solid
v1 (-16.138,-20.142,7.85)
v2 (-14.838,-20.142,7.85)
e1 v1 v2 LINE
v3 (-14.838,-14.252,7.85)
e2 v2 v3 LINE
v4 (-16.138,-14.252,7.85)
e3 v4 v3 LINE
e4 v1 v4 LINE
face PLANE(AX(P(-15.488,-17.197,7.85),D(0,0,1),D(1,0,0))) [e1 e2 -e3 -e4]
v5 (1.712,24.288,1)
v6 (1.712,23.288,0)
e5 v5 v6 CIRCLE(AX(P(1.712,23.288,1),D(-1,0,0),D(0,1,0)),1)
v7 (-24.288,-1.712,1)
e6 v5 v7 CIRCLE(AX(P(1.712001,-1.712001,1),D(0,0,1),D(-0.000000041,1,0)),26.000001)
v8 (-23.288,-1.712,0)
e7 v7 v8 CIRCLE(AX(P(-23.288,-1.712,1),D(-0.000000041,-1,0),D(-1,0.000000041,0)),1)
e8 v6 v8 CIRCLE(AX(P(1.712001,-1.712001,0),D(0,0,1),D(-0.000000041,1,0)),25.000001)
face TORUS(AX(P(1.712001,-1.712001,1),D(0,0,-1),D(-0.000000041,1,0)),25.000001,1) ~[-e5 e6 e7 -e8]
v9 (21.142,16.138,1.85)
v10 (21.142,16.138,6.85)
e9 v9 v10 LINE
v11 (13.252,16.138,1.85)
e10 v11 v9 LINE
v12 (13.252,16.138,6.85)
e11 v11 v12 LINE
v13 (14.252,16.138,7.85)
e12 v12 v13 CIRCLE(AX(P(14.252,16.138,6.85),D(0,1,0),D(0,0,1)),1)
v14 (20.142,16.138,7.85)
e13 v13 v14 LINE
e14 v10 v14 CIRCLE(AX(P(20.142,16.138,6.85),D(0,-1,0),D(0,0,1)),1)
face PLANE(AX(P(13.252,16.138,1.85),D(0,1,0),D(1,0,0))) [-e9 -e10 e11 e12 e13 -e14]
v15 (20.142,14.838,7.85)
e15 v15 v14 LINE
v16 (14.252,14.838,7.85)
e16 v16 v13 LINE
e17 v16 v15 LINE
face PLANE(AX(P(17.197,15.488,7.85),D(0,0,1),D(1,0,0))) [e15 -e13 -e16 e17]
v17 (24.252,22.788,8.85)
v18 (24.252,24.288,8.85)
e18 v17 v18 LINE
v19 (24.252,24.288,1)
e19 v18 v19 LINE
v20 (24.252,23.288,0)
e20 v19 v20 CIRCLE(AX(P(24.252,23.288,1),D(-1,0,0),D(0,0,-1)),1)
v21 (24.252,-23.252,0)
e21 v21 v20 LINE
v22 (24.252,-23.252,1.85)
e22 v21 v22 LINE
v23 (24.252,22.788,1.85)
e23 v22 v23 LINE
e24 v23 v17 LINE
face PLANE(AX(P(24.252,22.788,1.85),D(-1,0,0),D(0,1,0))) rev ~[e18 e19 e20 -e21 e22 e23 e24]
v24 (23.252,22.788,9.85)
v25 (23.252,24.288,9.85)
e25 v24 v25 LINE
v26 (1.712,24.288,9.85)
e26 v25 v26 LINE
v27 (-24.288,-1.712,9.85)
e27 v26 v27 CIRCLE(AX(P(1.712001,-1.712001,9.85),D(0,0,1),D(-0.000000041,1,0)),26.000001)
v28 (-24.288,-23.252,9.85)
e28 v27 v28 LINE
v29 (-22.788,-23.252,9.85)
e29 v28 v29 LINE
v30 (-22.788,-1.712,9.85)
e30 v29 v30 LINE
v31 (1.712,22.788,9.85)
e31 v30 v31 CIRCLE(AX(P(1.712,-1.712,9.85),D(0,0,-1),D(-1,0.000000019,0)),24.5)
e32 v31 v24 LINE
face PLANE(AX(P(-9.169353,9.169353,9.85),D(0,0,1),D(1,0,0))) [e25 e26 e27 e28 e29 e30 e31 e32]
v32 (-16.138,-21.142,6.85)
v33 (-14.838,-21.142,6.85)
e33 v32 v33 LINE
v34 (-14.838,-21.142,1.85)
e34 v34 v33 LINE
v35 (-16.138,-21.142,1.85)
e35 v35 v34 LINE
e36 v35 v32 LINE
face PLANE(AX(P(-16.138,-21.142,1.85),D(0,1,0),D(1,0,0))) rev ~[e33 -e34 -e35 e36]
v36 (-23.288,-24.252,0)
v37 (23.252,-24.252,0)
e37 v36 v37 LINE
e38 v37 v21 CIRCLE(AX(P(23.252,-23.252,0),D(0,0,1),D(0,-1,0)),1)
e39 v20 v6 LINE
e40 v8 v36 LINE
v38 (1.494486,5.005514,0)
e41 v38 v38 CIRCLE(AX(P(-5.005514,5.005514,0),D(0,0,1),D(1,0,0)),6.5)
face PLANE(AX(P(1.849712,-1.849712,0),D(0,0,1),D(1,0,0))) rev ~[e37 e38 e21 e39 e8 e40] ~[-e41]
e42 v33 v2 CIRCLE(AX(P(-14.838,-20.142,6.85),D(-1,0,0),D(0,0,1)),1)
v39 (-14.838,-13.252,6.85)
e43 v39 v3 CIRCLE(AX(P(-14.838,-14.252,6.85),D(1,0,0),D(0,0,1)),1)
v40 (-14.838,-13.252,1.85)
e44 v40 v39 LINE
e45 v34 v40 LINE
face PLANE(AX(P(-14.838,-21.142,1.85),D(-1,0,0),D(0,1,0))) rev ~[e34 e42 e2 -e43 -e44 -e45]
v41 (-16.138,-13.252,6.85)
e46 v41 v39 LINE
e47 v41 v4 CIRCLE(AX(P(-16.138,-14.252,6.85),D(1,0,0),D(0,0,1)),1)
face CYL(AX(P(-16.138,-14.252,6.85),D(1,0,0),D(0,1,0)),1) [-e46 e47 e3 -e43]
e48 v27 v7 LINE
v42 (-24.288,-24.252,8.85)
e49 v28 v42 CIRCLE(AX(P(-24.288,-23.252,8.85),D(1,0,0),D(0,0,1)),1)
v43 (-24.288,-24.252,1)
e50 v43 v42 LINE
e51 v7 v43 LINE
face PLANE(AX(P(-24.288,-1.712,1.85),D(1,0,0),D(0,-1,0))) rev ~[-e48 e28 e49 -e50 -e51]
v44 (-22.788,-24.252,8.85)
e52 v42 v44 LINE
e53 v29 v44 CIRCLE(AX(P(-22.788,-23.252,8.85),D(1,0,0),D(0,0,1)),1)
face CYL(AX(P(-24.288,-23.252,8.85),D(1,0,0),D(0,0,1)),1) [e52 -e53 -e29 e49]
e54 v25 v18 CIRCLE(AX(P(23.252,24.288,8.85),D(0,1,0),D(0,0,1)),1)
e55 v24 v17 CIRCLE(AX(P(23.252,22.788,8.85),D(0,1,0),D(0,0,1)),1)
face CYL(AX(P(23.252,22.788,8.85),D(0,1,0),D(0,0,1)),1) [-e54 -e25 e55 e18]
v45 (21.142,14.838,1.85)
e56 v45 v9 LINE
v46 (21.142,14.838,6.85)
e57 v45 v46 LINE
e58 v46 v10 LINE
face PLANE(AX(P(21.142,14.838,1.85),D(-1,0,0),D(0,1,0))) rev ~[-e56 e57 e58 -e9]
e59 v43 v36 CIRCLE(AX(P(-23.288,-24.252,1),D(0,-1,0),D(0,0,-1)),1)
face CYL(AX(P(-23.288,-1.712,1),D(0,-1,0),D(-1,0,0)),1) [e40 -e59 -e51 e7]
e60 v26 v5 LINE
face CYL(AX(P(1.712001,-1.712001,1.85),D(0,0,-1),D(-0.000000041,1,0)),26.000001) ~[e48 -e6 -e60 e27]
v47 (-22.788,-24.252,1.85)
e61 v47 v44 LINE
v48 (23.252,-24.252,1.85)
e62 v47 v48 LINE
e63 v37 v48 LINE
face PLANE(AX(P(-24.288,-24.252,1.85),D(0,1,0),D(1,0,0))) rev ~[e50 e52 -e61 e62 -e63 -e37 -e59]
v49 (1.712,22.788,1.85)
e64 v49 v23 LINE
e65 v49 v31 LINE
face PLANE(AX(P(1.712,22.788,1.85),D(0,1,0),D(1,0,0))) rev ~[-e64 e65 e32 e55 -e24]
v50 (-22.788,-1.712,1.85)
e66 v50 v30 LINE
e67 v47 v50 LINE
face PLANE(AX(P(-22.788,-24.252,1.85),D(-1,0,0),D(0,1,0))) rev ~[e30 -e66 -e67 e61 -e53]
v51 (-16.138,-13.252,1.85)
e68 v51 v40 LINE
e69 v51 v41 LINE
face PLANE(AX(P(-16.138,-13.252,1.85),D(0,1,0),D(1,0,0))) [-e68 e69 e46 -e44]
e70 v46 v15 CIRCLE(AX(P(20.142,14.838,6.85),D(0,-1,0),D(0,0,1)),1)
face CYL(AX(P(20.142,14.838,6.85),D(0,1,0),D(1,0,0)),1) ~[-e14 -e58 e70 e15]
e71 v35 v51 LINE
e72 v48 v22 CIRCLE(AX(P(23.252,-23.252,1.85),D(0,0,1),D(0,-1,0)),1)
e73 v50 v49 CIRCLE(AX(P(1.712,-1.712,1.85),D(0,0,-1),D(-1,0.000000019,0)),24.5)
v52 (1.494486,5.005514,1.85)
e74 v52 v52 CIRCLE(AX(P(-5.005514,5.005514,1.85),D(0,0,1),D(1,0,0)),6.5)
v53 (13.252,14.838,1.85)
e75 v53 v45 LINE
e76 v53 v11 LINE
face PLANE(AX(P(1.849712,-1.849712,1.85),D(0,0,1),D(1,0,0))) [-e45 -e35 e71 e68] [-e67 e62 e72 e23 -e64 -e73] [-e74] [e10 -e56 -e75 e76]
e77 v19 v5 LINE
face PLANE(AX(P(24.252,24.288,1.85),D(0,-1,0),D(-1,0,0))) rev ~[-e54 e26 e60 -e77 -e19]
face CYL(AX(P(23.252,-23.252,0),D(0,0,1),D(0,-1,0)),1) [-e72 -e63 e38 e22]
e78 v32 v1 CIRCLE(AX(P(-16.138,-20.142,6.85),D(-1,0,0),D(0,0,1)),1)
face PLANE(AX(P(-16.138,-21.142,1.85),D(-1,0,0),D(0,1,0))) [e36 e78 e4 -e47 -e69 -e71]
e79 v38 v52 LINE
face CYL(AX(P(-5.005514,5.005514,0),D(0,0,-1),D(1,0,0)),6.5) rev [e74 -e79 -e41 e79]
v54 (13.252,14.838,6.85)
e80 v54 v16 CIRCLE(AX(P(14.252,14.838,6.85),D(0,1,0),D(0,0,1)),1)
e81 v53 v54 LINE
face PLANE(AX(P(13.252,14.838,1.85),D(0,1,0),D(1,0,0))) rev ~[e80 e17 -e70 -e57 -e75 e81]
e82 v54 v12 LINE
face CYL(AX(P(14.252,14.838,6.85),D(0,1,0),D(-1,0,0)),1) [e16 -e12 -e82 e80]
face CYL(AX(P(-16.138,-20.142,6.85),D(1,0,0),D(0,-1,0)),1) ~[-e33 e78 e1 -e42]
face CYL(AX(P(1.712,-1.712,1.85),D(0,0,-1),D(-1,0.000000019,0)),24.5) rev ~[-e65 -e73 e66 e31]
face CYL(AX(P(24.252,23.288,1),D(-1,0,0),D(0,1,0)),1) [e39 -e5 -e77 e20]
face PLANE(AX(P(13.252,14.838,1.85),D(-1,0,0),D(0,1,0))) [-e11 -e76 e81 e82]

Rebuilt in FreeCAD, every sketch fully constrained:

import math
import FreeCAD as App
import Part
import Sketcher


def edges_at(feature, points):
    """Names of the edges that pass closest to the given points."""
    edges = feature.Shape.Edges
    near = lambda p: min(range(len(edges)), key=lambda i: edges[i].distToShape(Part.Vertex(*p))[0])
    return sorted({f"Edge{near(p) + 1}" for p in points})

doc = App.newDocument("Part")
body = doc.addObject("PartDesign::Body", "Body")

# Sketch on XY plane
sketch1 = body.newObject("Sketcher::SketchObject", "Sketch")
sketch1.AttachmentSupport = (doc.getObject("XY_Plane"), [""])
sketch1.MapMode = "FlatFace"
sketch1.addGeometry(Part.LineSegment(App.Vector(-24, -24, 0), App.Vector(24, -24, 0)), False)
sketch1.addGeometry(Part.LineSegment(App.Vector(24, -24, 0), App.Vector(24, 24, 0)), False)
sketch1.addGeometry(Part.LineSegment(App.Vector(24, 24, 0), App.Vector(2, 24, 0)), False)
sketch1.addGeometry(Part.ArcOfCircle(Part.Circle(App.Vector(2, -2, 0), App.Vector(0, 0, 1), 26), math.radians(90), math.radians(180)), False)
sketch1.addGeometry(Part.LineSegment(App.Vector(-24, -2, 0), App.Vector(-24, -24, 0)), False)
sketch1.addGeometry(Part.Circle(App.Vector(-5, 5, 0), App.Vector(0, 0, 1), 6), False)
sketch1.addConstraint(Sketcher.Constraint("Coincident", 0, 2, 1, 1))
sketch1.addConstraint(Sketcher.Constraint("Coincident", 1, 2, 2, 1))
sketch1.addConstraint(Sketcher.Constraint("Tangent", 2, 2, 3, 1))
sketch1.addConstraint(Sketcher.Constraint("Tangent", 3, 2, 4, 1))
sketch1.addConstraint(Sketcher.Constraint("Coincident", 4, 2, 0, 1))
sketch1.addConstraint(Sketcher.Constraint("Horizontal", 0))
sketch1.addConstraint(Sketcher.Constraint("Vertical", 1))
sketch1.addConstraint(Sketcher.Constraint("Horizontal", 2))
sketch1.addConstraint(Sketcher.Constraint("Vertical", 4))
sketch1.addConstraint(Sketcher.Constraint("Equal", 0, 1))
sketch1.addConstraint(Sketcher.Constraint("Diameter", 5, 13.0))
sketch1.addConstraint(Sketcher.Constraint("Radius", 3, 26.000001))
sketch1.addConstraint(Sketcher.Constraint("DistanceX", 0, 1, 0, 2, 48.54))
sketch1.addConstraint(Sketcher.Constraint("DistanceX", -1, 1, 3, 3, 1.712001))
sketch1.addConstraint(Sketcher.Constraint("DistanceY", 3, 3, -1, 1, 1.712001))
sketch1.addConstraint(Sketcher.Constraint("DistanceX", 5, 3, -1, 1, 5.005514))
sketch1.addConstraint(Sketcher.Constraint("DistanceY", -1, 1, 5, 3, 5.005514))
pad1 = body.newObject("PartDesign::Pad", "Pad")
pad1.Profile = sketch1
pad1.Length = 1.85

# Sketch on XY plane
sketch2 = body.newObject("Sketcher::SketchObject", "Sketch001")
sketch2.AttachmentSupport = (doc.getObject("XY_Plane"), [""])
sketch2.MapMode = "FlatFace"
sketch2.AttachmentOffset = App.Placement(App.Vector(0, 0, 1.85), App.Rotation())
sketch2.addGeometry(Part.LineSegment(App.Vector(-24.3, -1.7, 0), App.Vector(-24.3, -24.3, 0)), False)
sketch2.addGeometry(Part.LineSegment(App.Vector(-24.3, -24.3, 0), App.Vector(-22.8, -24.3, 0)), False)
sketch2.addGeometry(Part.LineSegment(App.Vector(-22.8, -24.3, 0), App.Vector(-22.8, -1.7, 0)), False)
sketch2.addGeometry(Part.ArcOfCircle(Part.Circle(App.Vector(1.7, -1.7, 0), App.Vector(0, 0, 1), 24.5), math.radians(90), math.radians(180)), False)
sketch2.addGeometry(Part.LineSegment(App.Vector(1.7, 22.8, 0), App.Vector(24.3, 22.8, 0)), False)
sketch2.addGeometry(Part.LineSegment(App.Vector(24.3, 22.8, 0), App.Vector(24.3, 24.3, 0)), False)
sketch2.addGeometry(Part.LineSegment(App.Vector(24.3, 24.3, 0), App.Vector(1.7, 24.3, 0)), False)
sketch2.addGeometry(Part.ArcOfCircle(Part.Circle(App.Vector(1.7, -1.7, 0), App.Vector(0, 0, 1), 26), math.radians(90), math.radians(180)), False)
sketch2.addConstraint(Sketcher.Constraint("Coincident", 0, 2, 1, 1))
sketch2.addConstraint(Sketcher.Constraint("Coincident", 1, 2, 2, 1))
sketch2.addConstraint(Sketcher.Constraint("Tangent", 2, 2, 3, 2))
sketch2.addConstraint(Sketcher.Constraint("Tangent", 3, 1, 4, 1))
sketch2.addConstraint(Sketcher.Constraint("Coincident", 4, 2, 5, 1))
sketch2.addConstraint(Sketcher.Constraint("Coincident", 5, 2, 6, 1))
sketch2.addConstraint(Sketcher.Constraint("Tangent", 6, 2, 7, 1))
sketch2.addConstraint(Sketcher.Constraint("Tangent", 7, 2, 0, 1))
sketch2.addConstraint(Sketcher.Constraint("Vertical", 0))
sketch2.addConstraint(Sketcher.Constraint("Horizontal", 1))
sketch2.addConstraint(Sketcher.Constraint("Vertical", 2))
sketch2.addConstraint(Sketcher.Constraint("Horizontal", 4))
sketch2.addConstraint(Sketcher.Constraint("Vertical", 5))
sketch2.addConstraint(Sketcher.Constraint("Horizontal", 6))
sketch2.addConstraint(Sketcher.Constraint("Coincident", 7, 3, 3, 3))
sketch2.addConstraint(Sketcher.Constraint("Equal", 6, 0))
sketch2.addConstraint(Sketcher.Constraint("Radius", 7, 26.000001))
sketch2.addConstraint(Sketcher.Constraint("Radius", 3, 24.5))
sketch2.addConstraint(Sketcher.Constraint("DistanceX", 4, 1, 4, 2, 22.54))
sketch2.addConstraint(Sketcher.Constraint("DistanceX", -1, 1, 3, 3, 1.712))
sketch2.addConstraint(Sketcher.Constraint("DistanceY", 3, 3, -1, 1, 1.712))
pad2 = body.newObject("PartDesign::Pad", "Pad001")
pad2.Profile = sketch2
pad2.Length = 8

# Sketch on XY plane
sketch3 = body.newObject("Sketcher::SketchObject", "Sketch002")
sketch3.AttachmentSupport = (doc.getObject("XY_Plane"), [""])
sketch3.MapMode = "FlatFace"
sketch3.AttachmentOffset = App.Placement(App.Vector(0, 0, 1.85), App.Rotation())
sketch3.addGeometry(Part.LineSegment(App.Vector(-16.1, -13.3, 0), App.Vector(-16.1, -21.1, 0)), False)
sketch3.addGeometry(Part.LineSegment(App.Vector(-16.1, -21.1, 0), App.Vector(-14.8, -21.1, 0)), False)
sketch3.addGeometry(Part.LineSegment(App.Vector(-14.8, -21.1, 0), App.Vector(-14.8, -13.3, 0)), False)
sketch3.addGeometry(Part.LineSegment(App.Vector(-14.8, -13.3, 0), App.Vector(-16.1, -13.3, 0)), False)
sketch3.addGeometry(Part.LineSegment(App.Vector(13.3, 16.1, 0), App.Vector(13.3, 14.8, 0)), False)
sketch3.addGeometry(Part.LineSegment(App.Vector(13.3, 14.8, 0), App.Vector(21.1, 14.8, 0)), False)
sketch3.addGeometry(Part.LineSegment(App.Vector(21.1, 14.8, 0), App.Vector(21.1, 16.1, 0)), False)
sketch3.addGeometry(Part.LineSegment(App.Vector(21.1, 16.1, 0), App.Vector(13.3, 16.1, 0)), False)
sketch3.addConstraint(Sketcher.Constraint("Coincident", 0, 2, 1, 1))
sketch3.addConstraint(Sketcher.Constraint("Coincident", 1, 2, 2, 1))
sketch3.addConstraint(Sketcher.Constraint("Coincident", 2, 2, 3, 1))
sketch3.addConstraint(Sketcher.Constraint("Coincident", 3, 2, 0, 1))
sketch3.addConstraint(Sketcher.Constraint("Coincident", 4, 2, 5, 1))
sketch3.addConstraint(Sketcher.Constraint("Coincident", 5, 2, 6, 1))
sketch3.addConstraint(Sketcher.Constraint("Coincident", 6, 2, 7, 1))
sketch3.addConstraint(Sketcher.Constraint("Coincident", 7, 2, 4, 1))
sketch3.addConstraint(Sketcher.Constraint("Vertical", 0))
sketch3.addConstraint(Sketcher.Constraint("Horizontal", 1))
sketch3.addConstraint(Sketcher.Constraint("Vertical", 2))
sketch3.addConstraint(Sketcher.Constraint("Horizontal", 3))
sketch3.addConstraint(Sketcher.Constraint("Vertical", 4))
sketch3.addConstraint(Sketcher.Constraint("Horizontal", 5))
sketch3.addConstraint(Sketcher.Constraint("Vertical", 6))
sketch3.addConstraint(Sketcher.Constraint("Horizontal", 7))
sketch3.addConstraint(Sketcher.Constraint("Equal", 7, 0))
sketch3.addConstraint(Sketcher.Constraint("Equal", 3, 4))
sketch3.addConstraint(Sketcher.Constraint("DistanceX", 1, 1, 1, 2, 1.3))
sketch3.addConstraint(Sketcher.Constraint("DistanceX", 5, 1, 5, 2, 7.89))
sketch3.addConstraint(Sketcher.Constraint("DistanceX", 2, 2, 4, 2, 28.09))
sketch3.addConstraint(Sketcher.Constraint("DistanceY", 2, 2, 4, 2, 28.09))
sketch3.addConstraint(Sketcher.Constraint("DistanceX", 0, 2, -1, 1, 16.138))
sketch3.addConstraint(Sketcher.Constraint("DistanceY", 0, 2, -1, 1, 21.142))
pad3 = body.newObject("PartDesign::Pad", "Pad002")
pad3.Profile = sketch3
pad3.Length = 6
doc.recompute()

fillet = body.newObject("PartDesign::Fillet", "Fillet")
fillet.Base = (pad3, edges_at(pad3, [
    (-23.538, -24.252, 9.85),
    (24.252, 23.538, 9.85),
    (-24.288, -12.982, 0),
    (-15.488, -21.142, 7.85),
    (-15.488, -13.252, 7.85),
    (13.252, 15.488, 7.85),
    (21.142, 15.488, 7.85),
    (24.252, -24.252, 0.925),
]))
fillet.Radius = 1

doc.recompute()
